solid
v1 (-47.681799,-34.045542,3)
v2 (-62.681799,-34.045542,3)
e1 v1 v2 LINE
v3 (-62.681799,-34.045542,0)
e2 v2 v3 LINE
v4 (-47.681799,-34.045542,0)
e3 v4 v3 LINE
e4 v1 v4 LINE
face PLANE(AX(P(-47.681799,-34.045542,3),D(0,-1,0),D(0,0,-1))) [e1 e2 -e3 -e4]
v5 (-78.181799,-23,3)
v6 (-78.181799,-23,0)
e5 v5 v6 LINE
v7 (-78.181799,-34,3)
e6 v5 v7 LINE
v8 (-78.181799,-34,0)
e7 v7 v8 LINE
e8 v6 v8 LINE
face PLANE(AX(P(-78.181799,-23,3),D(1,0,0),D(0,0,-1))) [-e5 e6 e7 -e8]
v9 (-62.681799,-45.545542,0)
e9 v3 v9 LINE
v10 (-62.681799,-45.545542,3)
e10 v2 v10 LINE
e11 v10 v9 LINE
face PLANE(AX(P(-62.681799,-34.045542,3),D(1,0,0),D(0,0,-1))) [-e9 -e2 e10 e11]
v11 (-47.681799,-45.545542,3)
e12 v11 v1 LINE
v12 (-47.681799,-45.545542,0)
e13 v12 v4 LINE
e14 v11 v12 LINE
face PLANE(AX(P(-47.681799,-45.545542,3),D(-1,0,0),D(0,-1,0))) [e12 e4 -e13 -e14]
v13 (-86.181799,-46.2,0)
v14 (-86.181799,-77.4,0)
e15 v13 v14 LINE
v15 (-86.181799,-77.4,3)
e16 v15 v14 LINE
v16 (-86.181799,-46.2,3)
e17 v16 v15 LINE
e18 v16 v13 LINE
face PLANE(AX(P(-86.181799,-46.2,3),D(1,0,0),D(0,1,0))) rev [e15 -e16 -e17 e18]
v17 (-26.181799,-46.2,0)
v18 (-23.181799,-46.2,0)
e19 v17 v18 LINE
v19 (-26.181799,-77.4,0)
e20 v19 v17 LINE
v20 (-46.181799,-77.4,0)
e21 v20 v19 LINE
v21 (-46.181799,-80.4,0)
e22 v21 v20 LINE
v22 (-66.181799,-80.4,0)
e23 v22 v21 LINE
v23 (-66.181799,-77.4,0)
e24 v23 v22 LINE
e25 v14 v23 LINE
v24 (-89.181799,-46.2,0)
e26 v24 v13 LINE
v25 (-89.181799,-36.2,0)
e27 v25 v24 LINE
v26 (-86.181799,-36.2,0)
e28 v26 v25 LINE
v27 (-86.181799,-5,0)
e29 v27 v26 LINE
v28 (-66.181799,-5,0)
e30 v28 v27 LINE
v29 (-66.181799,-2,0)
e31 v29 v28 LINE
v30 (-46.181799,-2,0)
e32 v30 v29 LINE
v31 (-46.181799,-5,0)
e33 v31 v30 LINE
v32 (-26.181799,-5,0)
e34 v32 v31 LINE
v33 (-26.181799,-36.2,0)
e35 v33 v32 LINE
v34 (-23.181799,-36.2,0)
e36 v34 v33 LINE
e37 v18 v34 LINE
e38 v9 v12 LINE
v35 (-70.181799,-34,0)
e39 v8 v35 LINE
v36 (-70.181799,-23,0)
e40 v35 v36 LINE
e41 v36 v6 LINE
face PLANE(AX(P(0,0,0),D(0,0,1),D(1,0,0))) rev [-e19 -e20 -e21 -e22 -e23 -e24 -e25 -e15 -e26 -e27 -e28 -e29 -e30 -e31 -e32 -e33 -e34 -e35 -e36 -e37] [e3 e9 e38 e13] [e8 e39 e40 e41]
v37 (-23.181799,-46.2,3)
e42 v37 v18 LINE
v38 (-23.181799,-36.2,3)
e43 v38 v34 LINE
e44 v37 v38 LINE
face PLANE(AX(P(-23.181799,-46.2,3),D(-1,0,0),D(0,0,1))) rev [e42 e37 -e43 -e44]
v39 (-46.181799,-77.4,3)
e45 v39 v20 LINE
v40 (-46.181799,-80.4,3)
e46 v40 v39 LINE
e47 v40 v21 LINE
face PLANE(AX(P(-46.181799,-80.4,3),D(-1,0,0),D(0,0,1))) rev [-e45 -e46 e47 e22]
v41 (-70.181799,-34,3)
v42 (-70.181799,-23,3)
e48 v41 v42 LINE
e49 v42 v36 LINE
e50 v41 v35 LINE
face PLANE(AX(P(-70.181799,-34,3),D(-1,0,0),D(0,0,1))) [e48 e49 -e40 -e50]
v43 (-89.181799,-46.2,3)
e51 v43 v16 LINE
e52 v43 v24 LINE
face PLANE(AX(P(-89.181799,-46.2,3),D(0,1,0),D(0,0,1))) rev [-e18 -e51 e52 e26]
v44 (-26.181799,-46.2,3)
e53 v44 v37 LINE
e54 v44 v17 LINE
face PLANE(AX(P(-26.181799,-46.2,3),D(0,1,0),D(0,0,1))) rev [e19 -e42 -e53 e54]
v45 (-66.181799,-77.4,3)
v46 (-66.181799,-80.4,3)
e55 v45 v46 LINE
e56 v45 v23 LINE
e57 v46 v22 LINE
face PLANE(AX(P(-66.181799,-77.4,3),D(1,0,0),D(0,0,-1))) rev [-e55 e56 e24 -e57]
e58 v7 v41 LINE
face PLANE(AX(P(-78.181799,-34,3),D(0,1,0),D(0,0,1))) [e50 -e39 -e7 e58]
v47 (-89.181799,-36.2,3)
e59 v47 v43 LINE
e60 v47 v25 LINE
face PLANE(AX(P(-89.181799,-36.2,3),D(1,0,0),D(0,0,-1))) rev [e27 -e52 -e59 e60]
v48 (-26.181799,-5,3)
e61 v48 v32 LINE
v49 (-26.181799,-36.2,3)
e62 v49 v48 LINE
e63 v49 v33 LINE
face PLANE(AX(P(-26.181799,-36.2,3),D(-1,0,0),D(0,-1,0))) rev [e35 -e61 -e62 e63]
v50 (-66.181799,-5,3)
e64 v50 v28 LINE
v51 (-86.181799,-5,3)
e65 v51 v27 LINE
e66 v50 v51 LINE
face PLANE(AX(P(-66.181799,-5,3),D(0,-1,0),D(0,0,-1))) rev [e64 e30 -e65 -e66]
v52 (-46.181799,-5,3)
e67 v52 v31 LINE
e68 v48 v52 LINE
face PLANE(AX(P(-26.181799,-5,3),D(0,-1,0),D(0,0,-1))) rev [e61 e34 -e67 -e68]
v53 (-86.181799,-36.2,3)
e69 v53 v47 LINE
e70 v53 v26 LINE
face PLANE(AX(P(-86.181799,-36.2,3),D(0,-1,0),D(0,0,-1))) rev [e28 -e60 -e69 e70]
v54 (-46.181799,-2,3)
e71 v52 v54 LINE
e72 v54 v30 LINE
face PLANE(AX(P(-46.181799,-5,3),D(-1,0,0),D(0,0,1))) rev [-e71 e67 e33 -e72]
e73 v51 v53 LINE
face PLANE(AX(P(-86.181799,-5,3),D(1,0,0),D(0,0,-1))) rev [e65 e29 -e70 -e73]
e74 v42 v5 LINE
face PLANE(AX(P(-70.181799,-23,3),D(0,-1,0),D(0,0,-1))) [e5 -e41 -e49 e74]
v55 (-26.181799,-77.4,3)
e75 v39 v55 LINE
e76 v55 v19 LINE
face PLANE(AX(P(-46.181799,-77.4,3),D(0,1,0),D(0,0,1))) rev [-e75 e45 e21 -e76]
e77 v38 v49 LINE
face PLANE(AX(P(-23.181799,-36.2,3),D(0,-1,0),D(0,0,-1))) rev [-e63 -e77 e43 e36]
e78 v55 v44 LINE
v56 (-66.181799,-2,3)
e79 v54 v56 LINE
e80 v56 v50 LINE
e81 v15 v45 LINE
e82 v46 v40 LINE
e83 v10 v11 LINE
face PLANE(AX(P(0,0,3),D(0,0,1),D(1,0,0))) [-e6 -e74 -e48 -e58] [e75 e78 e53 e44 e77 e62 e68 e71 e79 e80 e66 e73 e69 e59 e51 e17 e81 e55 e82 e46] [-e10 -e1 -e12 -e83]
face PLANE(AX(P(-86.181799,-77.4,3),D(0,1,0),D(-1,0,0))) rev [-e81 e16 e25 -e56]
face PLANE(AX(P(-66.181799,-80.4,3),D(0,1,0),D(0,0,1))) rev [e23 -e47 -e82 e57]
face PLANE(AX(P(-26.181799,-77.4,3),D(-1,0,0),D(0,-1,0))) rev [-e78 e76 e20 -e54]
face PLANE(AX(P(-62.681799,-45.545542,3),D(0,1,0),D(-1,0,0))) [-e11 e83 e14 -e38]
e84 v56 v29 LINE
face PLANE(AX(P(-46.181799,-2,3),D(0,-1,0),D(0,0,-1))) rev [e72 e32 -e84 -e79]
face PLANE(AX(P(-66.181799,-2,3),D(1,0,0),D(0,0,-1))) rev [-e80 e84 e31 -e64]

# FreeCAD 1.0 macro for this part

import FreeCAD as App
import Part
import Sketcher

V = App.Vector


def add_polygon(sketch, points):
    """Adds a closed chain of lines whose ends are joined by coincident constraints."""
    first, n = sketch.GeometryCount, len(points)
    for a, b in zip(points, points[1:] + points[:1]):
        sketch.addGeometry(Part.LineSegment(App.Vector(*a, 0), App.Vector(*b, 0)), False)
    for i in range(n):
        sketch.addConstraint(Sketcher.Constraint("Coincident", first + i, 2, first + (i + 1) % n, 1))

doc = App.newDocument("Part")
body = doc.addObject("PartDesign::Body", "Body")

# Sketch on XY plane
sketch1 = body.newObject("Sketcher::SketchObject", "Sketch")
sketch1.AttachmentSupport = (doc.getObject("XY_Plane"), [""])
sketch1.MapMode = "FlatFace"
add_polygon(sketch1, [(-66.181799, -2), (-66.181799, -5), (-86.181799, -5), (-86.181799, -36.2), (-89.181799, -36.2), (-89.181799, -46.2), (-86.181799, -46.2), (-86.181799, -77.4), (-66.181799, -77.4), (-66.181799, -80.4), (-46.181799, -80.4), (-46.181799, -77.4), (-26.181799, -77.4), (-26.181799, -46.2), (-23.181799, -46.2), (-23.181799, -36.2), (-26.181799, -36.2), (-26.181799, -5), (-46.181799, -5), (-46.181799, -2)])  # lines 0-19
add_polygon(sketch1, [(-47.681799, -45.545542), (-62.681799, -45.545542), (-62.681799, -34.045542), (-47.681799, -34.045542)])  # lines 20-23
add_polygon(sketch1, [(-70.181799, -34), (-78.181799, -34), (-78.181799, -23), (-70.181799, -23)])  # lines 24-27
sketch1.addConstraint(Sketcher.Constraint("Vertical", 0))
sketch1.addConstraint(Sketcher.Constraint("Horizontal", 1))
sketch1.addConstraint(Sketcher.Constraint("Vertical", 2))
sketch1.addConstraint(Sketcher.Constraint("Horizontal", 3))
sketch1.addConstraint(Sketcher.Constraint("Vertical", 4))
sketch1.addConstraint(Sketcher.Constraint("Horizontal", 5))
sketch1.addConstraint(Sketcher.Constraint("Vertical", 6))
sketch1.addConstraint(Sketcher.Constraint("Horizontal", 7))
sketch1.addConstraint(Sketcher.Constraint("Vertical", 8))
sketch1.addConstraint(Sketcher.Constraint("Horizontal", 9))
sketch1.addConstraint(Sketcher.Constraint("Vertical", 10))
sketch1.addConstraint(Sketcher.Constraint("Horizontal", 11))
sketch1.addConstraint(Sketcher.Constraint("Vertical", 12))
sketch1.addConstraint(Sketcher.Constraint("Horizontal", 13))
sketch1.addConstraint(Sketcher.Constraint("Vertical", 14))
sketch1.addConstraint(Sketcher.Constraint("Horizontal", 15))
sketch1.addConstraint(Sketcher.Constraint("Vertical", 16))
sketch1.addConstraint(Sketcher.Constraint("Horizontal", 17))
sketch1.addConstraint(Sketcher.Constraint("Vertical", 18))
sketch1.addConstraint(Sketcher.Constraint("Horizontal", 19))
sketch1.addConstraint(Sketcher.Constraint("Horizontal", 20))
sketch1.addConstraint(Sketcher.Constraint("Vertical", 21))
sketch1.addConstraint(Sketcher.Constraint("Horizontal", 22))
sketch1.addConstraint(Sketcher.Constraint("Vertical", 23))
sketch1.addConstraint(Sketcher.Constraint("Horizontal", 24))
sketch1.addConstraint(Sketcher.Constraint("Vertical", 25))
sketch1.addConstraint(Sketcher.Constraint("Horizontal", 26))
sketch1.addConstraint(Sketcher.Constraint("Vertical", 27))
sketch1.addConstraint(Sketcher.Constraint("Horizontal", 7, 2, 10, 2))
sketch1.addConstraint(Sketcher.Constraint("Horizontal", 5, 2, 12, 2))
sketch1.addConstraint(Sketcher.Constraint("Horizontal", 3, 2, 14, 2))
sketch1.addConstraint(Sketcher.Constraint("Horizontal", 1, 2, 16, 2))
sketch1.addConstraint(Sketcher.Constraint("Vertical", 2, 2, 5, 2))
sketch1.addConstraint(Sketcher.Constraint("Vertical", 0, 2, 7, 2))
sketch1.addConstraint(Sketcher.Constraint("Vertical", 12, 2, 15, 2))
sketch1.addConstraint(Sketcher.Constraint("Vertical", 10, 2, 17, 2))
sketch1.addConstraint(Sketcher.Constraint("Equal", 7, 9))
sketch1.addConstraint(Sketcher.Constraint("Equal", 9, 11))
sketch1.addConstraint(Sketcher.Constraint("Equal", 5, 13))
sketch1.addConstraint(Sketcher.Constraint("Equal", 15, 0))
sketch1.addConstraint(Sketcher.Constraint("Equal", 2, 6))
sketch1.addConstraint(Sketcher.Constraint("Equal", 0, 8))
sketch1.addConstraint(Sketcher.Constraint("DistanceX", 1, 2, 1, 1, 20.0))
sketch1.addConstraint(Sketcher.Constraint("DistanceX", 3, 2, 3, 1, 3.0))
sketch1.addConstraint(Sketcher.Constraint("DistanceX", 20, 2, 20, 1, 15.0))
sketch1.addConstraint(Sketcher.Constraint("DistanceX", 24, 2, 24, 1, 8.0))
sketch1.addConstraint(Sketcher.Constraint("DistanceY", 4, 2, 4, 1, 10.0))
sketch1.addConstraint(Sketcher.Constraint("DistanceY", 25, 1, 25, 2, 11.0))
sketch1.addConstraint(Sketcher.Constraint("DistanceY", 2, 2, 2, 1, 31.2))
sketch1.addConstraint(Sketcher.Constraint("DistanceY", 21, 1, 21, 2, 11.5))
sketch1.addConstraint(Sketcher.Constraint("DistanceY", 0, 2, -1, 1, 5.0))
sketch1.addConstraint(Sketcher.Constraint("DistanceY", 24, 2, -1, 1, 34.0))
sketch1.addConstraint(Sketcher.Constraint("DistanceX", 2, 2, 24, 2, 8.0))
sketch1.addConstraint(Sketcher.Constraint("DistanceX", 5, 2, 20, 2, 23.5))
sketch1.addConstraint(Sketcher.Constraint("DistanceX", 0, 2, -1, 1, 66.181799))
sketch1.addConstraint(Sketcher.Constraint("DistanceY", 20, 2, -1, 1, 45.545542))
pad1 = body.newObject("PartDesign::Pad", "Pad")
pad1.Profile = sketch1
pad1.Length = 3

doc.recompute()
